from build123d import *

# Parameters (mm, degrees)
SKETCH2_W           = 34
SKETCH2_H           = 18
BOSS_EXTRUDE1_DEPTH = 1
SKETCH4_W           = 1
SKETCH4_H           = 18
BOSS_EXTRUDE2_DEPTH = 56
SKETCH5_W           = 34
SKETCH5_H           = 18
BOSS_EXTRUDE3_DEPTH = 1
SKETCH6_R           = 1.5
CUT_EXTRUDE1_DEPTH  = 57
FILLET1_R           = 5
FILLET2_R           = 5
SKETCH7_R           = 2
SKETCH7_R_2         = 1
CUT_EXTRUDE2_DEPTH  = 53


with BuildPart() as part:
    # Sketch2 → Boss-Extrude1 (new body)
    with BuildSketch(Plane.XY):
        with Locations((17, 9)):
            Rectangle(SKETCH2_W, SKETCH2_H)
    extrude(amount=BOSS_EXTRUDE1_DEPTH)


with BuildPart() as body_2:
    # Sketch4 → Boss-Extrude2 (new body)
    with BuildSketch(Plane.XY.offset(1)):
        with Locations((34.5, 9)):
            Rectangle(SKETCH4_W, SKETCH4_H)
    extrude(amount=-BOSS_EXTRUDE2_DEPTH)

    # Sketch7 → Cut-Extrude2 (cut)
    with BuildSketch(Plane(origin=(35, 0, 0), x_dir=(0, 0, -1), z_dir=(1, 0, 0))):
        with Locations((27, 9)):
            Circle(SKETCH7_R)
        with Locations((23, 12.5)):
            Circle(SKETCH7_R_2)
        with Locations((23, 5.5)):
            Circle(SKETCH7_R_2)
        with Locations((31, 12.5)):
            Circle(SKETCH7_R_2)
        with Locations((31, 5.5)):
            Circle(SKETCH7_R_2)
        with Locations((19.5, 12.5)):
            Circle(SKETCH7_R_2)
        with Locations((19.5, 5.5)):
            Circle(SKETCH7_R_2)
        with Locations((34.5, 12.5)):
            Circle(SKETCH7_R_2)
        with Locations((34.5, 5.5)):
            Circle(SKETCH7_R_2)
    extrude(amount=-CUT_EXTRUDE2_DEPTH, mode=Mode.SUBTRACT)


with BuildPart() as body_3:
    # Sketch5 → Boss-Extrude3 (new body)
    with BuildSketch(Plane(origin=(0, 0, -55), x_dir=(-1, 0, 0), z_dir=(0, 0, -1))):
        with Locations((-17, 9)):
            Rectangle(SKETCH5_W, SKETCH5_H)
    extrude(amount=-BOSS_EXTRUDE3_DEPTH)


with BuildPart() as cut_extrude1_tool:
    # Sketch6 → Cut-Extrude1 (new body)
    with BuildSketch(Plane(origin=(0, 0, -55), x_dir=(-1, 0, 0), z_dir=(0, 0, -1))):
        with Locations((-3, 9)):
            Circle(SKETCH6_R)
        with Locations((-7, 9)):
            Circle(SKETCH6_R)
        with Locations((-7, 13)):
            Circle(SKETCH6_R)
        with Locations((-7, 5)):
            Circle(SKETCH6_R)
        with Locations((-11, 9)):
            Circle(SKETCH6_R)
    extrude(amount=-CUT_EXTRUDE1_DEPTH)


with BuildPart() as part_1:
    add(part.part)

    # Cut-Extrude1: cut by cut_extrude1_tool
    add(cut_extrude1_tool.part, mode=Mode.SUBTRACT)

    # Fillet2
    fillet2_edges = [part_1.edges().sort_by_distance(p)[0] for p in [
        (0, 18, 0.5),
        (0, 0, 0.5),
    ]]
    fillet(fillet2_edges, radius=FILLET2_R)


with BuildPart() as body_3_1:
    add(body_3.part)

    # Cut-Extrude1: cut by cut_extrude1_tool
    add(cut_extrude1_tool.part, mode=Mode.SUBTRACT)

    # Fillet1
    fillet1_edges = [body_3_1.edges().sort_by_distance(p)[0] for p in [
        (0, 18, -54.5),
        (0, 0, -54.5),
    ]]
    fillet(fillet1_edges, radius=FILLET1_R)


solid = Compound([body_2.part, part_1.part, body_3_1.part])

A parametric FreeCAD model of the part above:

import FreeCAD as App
import Part
import Sketcher


def edges_at(feature, points):
    """Names of the edges that pass closest to the given points."""
    edges = feature.Shape.Edges
    near = lambda p: min(range(len(edges)), key=lambda i: edges[i].distToShape(Part.Vertex(*p))[0])
    return sorted({f"Edge{near(p) + 1}" for p in points})


def add_polygon(sketch, points):
    """Adds a closed chain of lines whose ends are joined by coincident constraints."""
    first, n = sketch.GeometryCount, len(points)
    for a, b in zip(points, points[1:] + points[:1]):
        sketch.addGeometry(Part.LineSegment(App.Vector(*a, 0), App.Vector(*b, 0)), False)
    for i in range(n):
        sketch.addConstraint(Sketcher.Constraint("Coincident", first + i, 2, first + (i + 1) % n, 1))

doc = App.newDocument("Part")
body = doc.addObject("PartDesign::Body", "Body")

# Sketch on XY plane
sketch1 = body.newObject("Sketcher::SketchObject", "Sketch")
sketch1.AttachmentSupport = (doc.getObject("XY_Plane"), [""])
sketch1.MapMode = "FlatFace"
add_polygon(sketch1, [(0, 18), (0, 0), (34, 0), (34, 18)])  # lines 0-3
sketch1.addConstraint([
    Sketcher.Constraint("Vertical", 0),
    Sketcher.Constraint("Horizontal", 1),
    Sketcher.Constraint("Vertical", 2),
    Sketcher.Constraint("Horizontal", 3),
    Sketcher.Constraint("Coincident", 0, 2, -1, 1),
    Sketcher.Constraint("DistanceX", 1, 1, 1, 2, 34.0),
    Sketcher.Constraint("DistanceY", 0, 2, 0, 1, 18.0),
])
pad1 = body.newObject("PartDesign::Pad", "Pad")
pad1.Profile = sketch1
pad1.Length = 1
body2 = doc.addObject("PartDesign::Body", "Body001")

# Sketch on XY plane
sketch2 = body2.newObject("Sketcher::SketchObject", "Sketch001")
sketch2.AttachmentSupport = (doc.getObject("XY_Plane001"), [""])
sketch2.MapMode = "FlatFace"
sketch2.AttachmentOffset = App.Placement(App.Vector(0, 0, 1), App.Rotation())
add_polygon(sketch2, [(34, 18), (34, 0), (35, 0), (35, 18)])  # lines 0-3
sketch2.addConstraint([
    Sketcher.Constraint("Vertical", 0),
    Sketcher.Constraint("Horizontal", 1),
    Sketcher.Constraint("Vertical", 2),
    Sketcher.Constraint("Horizontal", 3),
    Sketcher.Constraint("PointOnObject", 0, 2, -1),
    Sketcher.Constraint("DistanceX", 1, 1, 1, 2, 1.0),
    Sketcher.Constraint("DistanceY", 0, 2, 0, 1, 18.0),
    Sketcher.Constraint("DistanceX", -1, 1, 0, 2, 34.0),
])
pad2 = body2.newObject("PartDesign::Pad", "Pad001")
pad2.Profile = sketch2
pad2.Length = 56
pad2.Reversed = True

# Sketch on YZ plane
sketch3 = body2.newObject("Sketcher::SketchObject", "Sketch002")
sketch3.AttachmentSupport = (doc.getObject("YZ_Plane001"), [""])
sketch3.MapMode = "FlatFace"
sketch3.AttachmentOffset = App.Placement(App.Vector(0, 0, 35), App.Rotation())
sketch3.addGeometry([
    Part.Circle(App.Vector(9, -27, 0), App.Vector(0, 0, 1), 2),  # 0
    Part.Circle(App.Vector(12.5, -23, 0), App.Vector(0, 0, 1), 1),  # 1
    Part.Circle(App.Vector(5.5, -23, 0), App.Vector(0, 0, 1), 1),  # 2
    Part.Circle(App.Vector(12.5, -31, 0), App.Vector(0, 0, 1), 1),  # 3
    Part.Circle(App.Vector(5.5, -31, 0), App.Vector(0, 0, 1), 1),  # 4
    Part.Circle(App.Vector(12.5, -19.5, 0), App.Vector(0, 0, 1), 1),  # 5
    Part.Circle(App.Vector(5.5, -19.5, 0), App.Vector(0, 0, 1), 1),  # 6
    Part.Circle(App.Vector(12.5, -34.5, 0), App.Vector(0, 0, 1), 1),  # 7
    Part.Circle(App.Vector(5.5, -34.5, 0), App.Vector(0, 0, 1), 1),  # 8
], False)
sketch3.addConstraint([
    Sketcher.Constraint("Equal", 1, 2),
    Sketcher.Constraint("Equal", 2, 3),
    Sketcher.Constraint("Equal", 3, 4),
    Sketcher.Constraint("Equal", 4, 5),
    Sketcher.Constraint("Equal", 5, 6),
    Sketcher.Constraint("Equal", 6, 7),
    Sketcher.Constraint("Equal", 7, 8),
    Sketcher.Constraint("Horizontal", 1, 3, 2, 3),
    Sketcher.Constraint("Horizontal", 3, 3, 4, 3),
    Sketcher.Constraint("Horizontal", 5, 3, 6, 3),
    Sketcher.Constraint("Horizontal", 7, 3, 8, 3),
    Sketcher.Constraint("Vertical", 1, 3, 3, 3),
    Sketcher.Constraint("Vertical", 2, 3, 4, 3),
    Sketcher.Constraint("Vertical", 3, 3, 5, 3),
    Sketcher.Constraint("Vertical", 4, 3, 6, 3),
    Sketcher.Constraint("Vertical", 5, 3, 7, 3),
    Sketcher.Constraint("Vertical", 6, 3, 8, 3),
    Sketcher.Constraint("Diameter", 0, 4.0),
    Sketcher.Constraint("Diameter", 1, 2.0),
    Sketcher.Constraint("DistanceX", -1, 1, 0, 3, 9.0),
    Sketcher.Constraint("DistanceY", 0, 3, -1, 1, 27.0),
    Sketcher.Constraint("DistanceY", 1, 3, -1, 1, 23.0),
    Sketcher.Constraint("DistanceY", 3, 3, -1, 1, 31.0),
    Sketcher.Constraint("DistanceX", 2, 3, 1, 3, 7.0),
    Sketcher.Constraint("DistanceX", -1, 1, 1, 3, 12.5),
    Sketcher.Constraint("DistanceY", 5, 3, -1, 1, 19.5),
    Sketcher.Constraint("DistanceY", 7, 3, -1, 1, 34.5),
])
pocket1 = body2.newObject("PartDesign::Pocket", "Pocket")
pocket1.Profile = sketch3
pocket1.Length = 53
body3 = doc.addObject("PartDesign::Body", "Body002")

# Sketch on XY plane
sketch4 = body3.newObject("Sketcher::SketchObject", "Sketch003")
sketch4.AttachmentSupport = (doc.getObject("XY_Plane002"), [""])
sketch4.MapMode = "FlatFace"
sketch4.AttachmentOffset = App.Placement(App.Vector(0, 0, -55), App.Rotation())
add_polygon(sketch4, [(34, 18), (34, 0), (0, 0), (0, 18)])  # lines 0-3
sketch4.addConstraint([
    Sketcher.Constraint("Vertical", 0),
    Sketcher.Constraint("Horizontal", 1),
    Sketcher.Constraint("Vertical", 2),
    Sketcher.Constraint("Horizontal", 3),
    Sketcher.Constraint("Coincident", 1, 2, -1, 1),
    Sketcher.Constraint("DistanceX", 1, 2, 1, 1, 34.0),
    Sketcher.Constraint("DistanceY", 0, 2, 0, 1, 18.0),
])
pad3 = body3.newObject("PartDesign::Pad", "Pad002")
pad3.Profile = sketch4
pad3.Length = 1
body4 = doc.addObject("PartDesign::Body", "Body003")
body4.AllowCompound = True

# Sketch on XY plane
sketch5 = body4.newObject("Sketcher::SketchObject", "Sketch004")
sketch5.AttachmentSupport = (doc.getObject("XY_Plane003"), [""])
sketch5.MapMode = "FlatFace"
sketch5.AttachmentOffset = App.Placement(App.Vector(0, 0, -55), App.Rotation())
sketch5.addGeometry([
    Part.Circle(App.Vector(3, 9, 0), App.Vector(0, 0, 1), 1.5),  # 0
    Part.Circle(App.Vector(7, 9, 0), App.Vector(0, 0, 1), 1.5),  # 1
    Part.Circle(App.Vector(7, 13, 0), App.Vector(0, 0, 1), 1.5),  # 2
    Part.Circle(App.Vector(7, 5, 0), App.Vector(0, 0, 1), 1.5),  # 3
    Part.Circle(App.Vector(11, 9, 0), App.Vector(0, 0, 1), 1.5),  # 4
], False)
sketch5.addConstraint([
    Sketcher.Constraint("Equal", 0, 1),
    Sketcher.Constraint("Equal", 1, 2),
    Sketcher.Constraint("Equal", 2, 3),
    Sketcher.Constraint("Equal", 3, 4),
    Sketcher.Constraint("Horizontal", 0, 3, 1, 3),
    Sketcher.Constraint("Horizontal", 1, 3, 4, 3),
    Sketcher.Constraint("Vertical", 1, 3, 2, 3),
    Sketcher.Constraint("Vertical", 2, 3, 3, 3),
    Sketcher.Constraint("Diameter", 0, 3.0),
    Sketcher.Constraint("DistanceX", -1, 1, 0, 3, 3.0),
    Sketcher.Constraint("DistanceY", -1, 1, 0, 3, 9.0),
    Sketcher.Constraint("DistanceX", -1, 1, 1, 3, 7.0),
    Sketcher.Constraint("DistanceY", -1, 1, 2, 3, 13.0),
    Sketcher.Constraint("DistanceY", -1, 1, 3, 3, 5.0),
    Sketcher.Constraint("DistanceX", -1, 1, 4, 3, 11.0),
])
pad4 = body4.newObject("PartDesign::Pad", "Pad003")
pad4.Profile = sketch5
pad4.Length = 57
doc.recompute()

body5 = doc.addObject("PartDesign::Body", "Body004")
body5.BaseFeature = body4
boolean = body.newObject("PartDesign::Boolean", "Boolean")
boolean.Type = "Cut"
boolean.addObjects([body5])
doc.recompute()

fillet = body.newObject("PartDesign::Fillet", "Fillet")
fillet.Base = (boolean, edges_at(boolean, [(0, 18, 0.5), (0, 0, 0.5)]))
fillet.Radius = 5
doc.recompute()

boolean2 = body3.newObject("PartDesign::Boolean", "Boolean001")
boolean2.Type = "Cut"
boolean2.addObjects([body4])
doc.recompute()

fillet2 = body3.newObject("PartDesign::Fillet", "Fillet001")
fillet2.Base = (boolean2, edges_at(boolean2, [(0, 18, -54.5), (0, 0, -54.5)]))
fillet2.Radius = 5

doc.recompute()
